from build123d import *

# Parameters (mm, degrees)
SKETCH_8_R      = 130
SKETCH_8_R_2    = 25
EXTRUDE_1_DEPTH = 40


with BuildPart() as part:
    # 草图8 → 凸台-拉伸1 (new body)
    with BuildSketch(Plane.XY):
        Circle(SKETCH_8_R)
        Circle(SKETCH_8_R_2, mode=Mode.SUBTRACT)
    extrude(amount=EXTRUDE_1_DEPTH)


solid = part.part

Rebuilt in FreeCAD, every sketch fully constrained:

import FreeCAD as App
import Part
import Sketcher
from FreeCAD import Vector
Q = App.Units.Quantity

doc = App.newDocument("Part")
body = doc.addObject("PartDesign::Body", "Body")

# Sketch on XY plane
sketch1 = body.newObject("Sketcher::SketchObject", "Sketch")
sketch1.AttachmentSupport = (doc.getObject("XY_Plane"), [""])
sketch1.MapMode = "FlatFace"
sketch1.addGeometry([
    Part.Circle(Vector(0, 0, 0), Vector(0, 0, 1), 130),
    Part.Circle(Vector(0, 0, 0), Vector(0, 0, 1), 25),
], False)
sketch1.addConstraint([
    Sketcher.Constraint("Coincident", 0, 3, -1, 1),
    Sketcher.Constraint("Coincident", 1, 3, -1, 1),
    Sketcher.Constraint("Diameter", 0, Q("260 mm")),
    Sketcher.Constraint("Diameter", 1, Q("50 mm")),
])
pad1 = body.newObject("PartDesign::Pad", "Pad")
pad1.Profile = sketch1
pad1.Length = 40

doc.recompute()
